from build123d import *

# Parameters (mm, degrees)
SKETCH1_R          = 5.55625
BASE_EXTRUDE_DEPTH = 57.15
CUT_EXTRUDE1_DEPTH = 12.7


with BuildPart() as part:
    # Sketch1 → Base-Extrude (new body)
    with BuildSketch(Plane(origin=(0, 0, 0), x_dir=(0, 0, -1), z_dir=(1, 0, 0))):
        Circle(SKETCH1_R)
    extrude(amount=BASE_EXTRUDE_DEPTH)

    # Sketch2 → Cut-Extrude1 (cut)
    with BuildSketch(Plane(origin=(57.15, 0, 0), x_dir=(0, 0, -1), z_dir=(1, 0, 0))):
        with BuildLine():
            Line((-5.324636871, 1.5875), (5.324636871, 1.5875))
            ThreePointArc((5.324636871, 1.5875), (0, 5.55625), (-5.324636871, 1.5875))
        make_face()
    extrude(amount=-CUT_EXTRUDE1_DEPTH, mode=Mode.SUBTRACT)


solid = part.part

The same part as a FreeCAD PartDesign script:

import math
import FreeCAD as App
import Part
import Sketcher

V = App.Vector
Q = App.Units.Quantity

doc = App.newDocument("Part")
body = doc.addObject("PartDesign::Body", "Body")

# Sketch on YZ plane
sketch1 = body.newObject("Sketcher::SketchObject", "Sketch")
sketch1.AttachmentSupport = (doc.getObject("YZ_Plane"), [""])
sketch1.MapMode = "FlatFace"
sketch1.addGeometry(Part.Circle(V(0, 0, 0), V(0, 0, 1), 6), False)
sketch1.addConstraint([
    Sketcher.Constraint("Coincident", 0, 3, -1, 1),
    Sketcher.Constraint("Diameter", 0, Q("0.4375 in")),
])
pad1 = body.newObject("PartDesign::Pad", "Pad")
pad1.Profile = sketch1
pad1.Length = Q("2.25 in")

# Sketch on YZ plane
sketch2 = body.newObject("Sketcher::SketchObject", "Sketch001")
sketch2.AttachmentSupport = (doc.getObject("YZ_Plane"), [""])
sketch2.MapMode = "FlatFace"
sketch2.AttachmentOffset = App.Placement(V(0, 0, 2.25 * 25.4), App.Rotation())
sketch2.addGeometry([
    Part.LineSegment(V(2, 5, 0), V(2, -5, 0)),
    Part.ArcOfCircle(Part.Circle(V(0, 0, 0), V(0, 0, 1), 6), math.radians(-73), math.radians(73)),
], False)
sketch2.addConstraint([
    Sketcher.Constraint("Coincident", 0, 1, 1, 2),
    Sketcher.Constraint("Coincident", 1, 1, 0, 2),
    Sketcher.Constraint("Vertical", 0),
    Sketcher.Constraint("Coincident", 1, 3, -1, 1),
    Sketcher.Constraint("Radius", 1, Q("0.21875 in")),
    Sketcher.Constraint("DistanceX", -1, 1, 0, 1, Q("0.0625 in")),
])
pocket1 = body.newObject("PartDesign::Pocket", "Pocket")
pocket1.Profile = sketch2
pocket1.Length = Q("0.5 in")

doc.recompute()
